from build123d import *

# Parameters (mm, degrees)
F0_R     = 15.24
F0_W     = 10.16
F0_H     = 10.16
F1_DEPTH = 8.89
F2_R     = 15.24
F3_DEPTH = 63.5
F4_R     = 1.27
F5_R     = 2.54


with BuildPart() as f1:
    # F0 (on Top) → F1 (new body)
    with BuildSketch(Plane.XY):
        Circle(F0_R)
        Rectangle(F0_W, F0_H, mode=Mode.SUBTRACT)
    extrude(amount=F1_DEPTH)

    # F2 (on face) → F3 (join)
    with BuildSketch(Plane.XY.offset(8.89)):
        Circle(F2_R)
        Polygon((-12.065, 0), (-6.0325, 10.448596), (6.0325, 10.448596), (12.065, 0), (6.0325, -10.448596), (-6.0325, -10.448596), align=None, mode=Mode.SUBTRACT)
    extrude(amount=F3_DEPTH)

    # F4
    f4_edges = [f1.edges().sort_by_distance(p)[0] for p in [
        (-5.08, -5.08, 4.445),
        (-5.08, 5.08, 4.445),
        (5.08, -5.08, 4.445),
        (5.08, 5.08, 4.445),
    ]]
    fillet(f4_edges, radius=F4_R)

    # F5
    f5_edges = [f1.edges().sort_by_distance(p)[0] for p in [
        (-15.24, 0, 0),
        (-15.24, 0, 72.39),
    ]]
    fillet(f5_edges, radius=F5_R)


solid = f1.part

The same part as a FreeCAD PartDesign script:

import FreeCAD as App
import Part
import Sketcher

V = App.Vector
Q = App.Units.Quantity


def edges_at(feature, points):
    """Names of the edges that pass closest to the given points."""
    edges = feature.Shape.Edges
    near = lambda p: min(range(len(edges)), key=lambda i: edges[i].distToShape(Part.Vertex(*p))[0])
    return sorted({f"Edge{near(p) + 1}" for p in points})

doc = App.newDocument("Part")
body = doc.addObject("PartDesign::Body", "Body")

sketch1 = doc.addObject("Sketcher::SketchObject", "Sketch")
body.addObject(sketch1)
sketch1.AttachmentSupport = (doc.XY_Plane, [""])
sketch1.MapMode = "FlatFace"
sketch1.addGeometry([
    Part.Circle(V(0, 0, 0), V(0, 0, 1), 15),
    Part.LineSegment(V(5, -5, 0), V(-5, -5, 0)),
    Part.LineSegment(V(-5, -5, 0), V(-5, 5, 0)),
    Part.LineSegment(V(-5, 5, 0), V(5, 5, 0)),
    Part.LineSegment(V(5, 5, 0), V(5, -5, 0)),
], False)
sketch1.addConstraint([
    Sketcher.Constraint("Coincident", 1, 2, 2, 1),
    Sketcher.Constraint("Coincident", 2, 2, 3, 1),
    Sketcher.Constraint("Coincident", 3, 2, 4, 1),
    Sketcher.Constraint("Coincident", 4, 2, 1, 1),
    Sketcher.Constraint("Horizontal", 1),
    Sketcher.Constraint("Vertical", 2),
    Sketcher.Constraint("Horizontal", 3),
    Sketcher.Constraint("Vertical", 4),
    Sketcher.Constraint("Coincident", 0, 3, -1, 1),
    Sketcher.Constraint("Symmetric", 1, 2, 3, 2, -1, 1),
    Sketcher.Constraint("Equal", 3, 2),
    Sketcher.Constraint("Diameter", 0, Q("1.2 in")),
    Sketcher.Constraint("DistanceX", 1, 2, 1, 1, Q("0.4 in")),
])
pad1 = doc.addObject("PartDesign::Pad", "Pad")
body.addObject(pad1)
pad1.Profile = sketch1
pad1.Length = Q("0.35 in")

sketch2 = doc.addObject("Sketcher::SketchObject", "Sketch001")
body.addObject(sketch2)
sketch2.AttachmentSupport = (doc.XY_Plane, [""])
sketch2.MapMode = "FlatFace"
sketch2.AttachmentOffset = App.Placement(V(0, 0, 0.35 * 25.4), App.Rotation())
sketch2.addGeometry([
    Part.Circle(V(0, 0, 0), V(0, 0, 1), 15),
    Part.LineSegment(V(-6, -10, 0), V(-12, 0, 0)),
    Part.LineSegment(V(-12, 0, 0), V(-6, 10, 0)),
    Part.LineSegment(V(-6, 10, 0), V(6, 10, 0)),
    Part.LineSegment(V(6, 10, 0), V(12, 0, 0)),
    Part.LineSegment(V(12, 0, 0), V(6, -10, 0)),
    Part.LineSegment(V(6, -10, 0), V(-6, -10, 0)),
], False)
sketch2.addConstraint([
    Sketcher.Constraint("Coincident", 1, 2, 2, 1),
    Sketcher.Constraint("Coincident", 2, 2, 3, 1),
    Sketcher.Constraint("Coincident", 3, 2, 4, 1),
    Sketcher.Constraint("Coincident", 4, 2, 5, 1),
    Sketcher.Constraint("Coincident", 5, 2, 6, 1),
    Sketcher.Constraint("Coincident", 6, 2, 1, 1),
    Sketcher.Constraint("Horizontal", 3),
    Sketcher.Constraint("Horizontal", 6),
    Sketcher.Constraint("Coincident", 0, 3, -1, 1),
    Sketcher.Constraint("Symmetric", 1, 2, 4, 2, -1, 1),
    Sketcher.Constraint("Symmetric", 2, 2, 5, 2, -1, 1),
    Sketcher.Constraint("PointOnObject", 1, 2, -1),
    Sketcher.Constraint("Parallel", 1, 4),
    Sketcher.Constraint("Vertical", 3, 2, 5, 2),
    Sketcher.Constraint("Diameter", 0, Q("1.2 in")),
    Sketcher.Constraint("Angle", 1, Q("120.000001 deg")),
    Sketcher.Constraint("DistanceX", 3, 1, 3, 2, Q("0.475 in")),
    Sketcher.Constraint("DistanceX", 1, 2, 4, 2, Q("0.95 in")),
])
pad2 = doc.addObject("PartDesign::Pad", "Pad001")
body.addObject(pad2)
pad2.Profile = sketch2
pad2.Length = Q("2.5 in")
doc.recompute()

fillet = doc.addObject("PartDesign::Fillet", "Fillet")
body.addObject(fillet)
fillet.Base = (pad2, edges_at(pad2, [
    (-5.08, -5.08, 4.445),
    (-5.08, 5.08, 4.445),
    (5.08, -5.08, 4.445),
    (5.08, 5.08, 4.445),
]))
fillet.Radius = Q("0.05 in")
doc.recompute()

fillet2 = doc.addObject("PartDesign::Fillet", "Fillet001")
body.addObject(fillet2)
fillet2.Base = (fillet, edges_at(fillet, [(-15.24, 0, 0), (-15.24, 0, 72.39)]))
fillet2.Radius = Q("0.1 in")

doc.recompute()
